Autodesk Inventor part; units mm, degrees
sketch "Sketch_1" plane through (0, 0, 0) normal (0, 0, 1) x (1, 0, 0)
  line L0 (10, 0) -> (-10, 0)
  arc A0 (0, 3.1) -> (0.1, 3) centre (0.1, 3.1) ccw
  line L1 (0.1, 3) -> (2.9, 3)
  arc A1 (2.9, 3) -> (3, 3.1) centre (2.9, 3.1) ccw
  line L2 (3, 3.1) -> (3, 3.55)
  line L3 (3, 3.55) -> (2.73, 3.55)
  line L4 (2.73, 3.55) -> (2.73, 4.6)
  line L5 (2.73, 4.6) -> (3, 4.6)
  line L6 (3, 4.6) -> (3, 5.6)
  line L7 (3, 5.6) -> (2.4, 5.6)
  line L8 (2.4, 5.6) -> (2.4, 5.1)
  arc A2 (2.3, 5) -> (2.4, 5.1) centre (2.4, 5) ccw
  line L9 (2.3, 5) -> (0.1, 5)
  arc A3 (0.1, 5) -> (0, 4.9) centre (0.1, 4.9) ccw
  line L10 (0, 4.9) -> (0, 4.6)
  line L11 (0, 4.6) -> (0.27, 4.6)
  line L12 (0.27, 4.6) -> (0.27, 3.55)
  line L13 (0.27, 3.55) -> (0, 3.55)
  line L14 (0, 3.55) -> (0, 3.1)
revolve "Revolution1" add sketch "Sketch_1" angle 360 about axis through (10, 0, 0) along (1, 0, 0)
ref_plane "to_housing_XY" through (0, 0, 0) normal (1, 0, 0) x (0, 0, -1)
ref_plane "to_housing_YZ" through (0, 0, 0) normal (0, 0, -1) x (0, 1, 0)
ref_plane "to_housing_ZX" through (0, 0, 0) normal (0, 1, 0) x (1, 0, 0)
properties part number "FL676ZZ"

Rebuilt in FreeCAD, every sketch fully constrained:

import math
import FreeCAD as App
import Part
import Sketcher

V = App.Vector
Q = App.Units.Quantity

doc = App.newDocument("Part")
params = doc.addObject("Spreadsheet::Sheet", "Params")
for row, (alias, value) in enumerate([
    ("sketch1_radius", "0.1 mm"),
    ("sketch1_height", "1 mm"),
    ("sketch1_width", "2.8 mm"),
    ("sketch1_width2", "0.6 mm"),
    ("sketch1_height2", "0.5 mm"),
    ("revolution_angle", "360 deg"),
], start=1):
    params.set(f"A{row}", alias)
    params.set(f"B{row}", "=" + value)
    params.setAlias(f"B{row}", alias)

body = doc.addObject("PartDesign::Body", "Body")

# Sketch on XY plane
sketch1 = doc.addObject("Sketcher::SketchObject", "Sketch")
body.addObject(sketch1)
sketch1.AttachmentSupport = (doc.XY_Plane, [""])
sketch1.MapMode = "FlatFace"
sketch1.addGeometry(Part.LineSegment(V(0, 3.55, 0), V(0, 3.1, 0)), False)
sketch1.addGeometry(Part.ArcOfCircle(Part.Circle(V(0.1, 3.1, 0), V(0, 0, 1), 0.1), math.radians(180), math.radians(270)), False)
sketch1.addGeometry(Part.LineSegment(V(0.1, 3, 0), V(2.9, 3, 0)), False)
sketch1.addGeometry(Part.ArcOfCircle(Part.Circle(V(2.9, 3.1, 0), V(0, 0, 1), 0.1), math.radians(-90), math.radians(0)), False)
sketch1.addGeometry(Part.LineSegment(V(3, 3.1, 0), V(3, 3.55, 0)), False)
sketch1.addGeometry(Part.LineSegment(V(3, 3.55, 0), V(2.73, 3.55, 0)), False)
sketch1.addGeometry(Part.LineSegment(V(2.73, 3.55, 0), V(2.73, 4.6, 0)), False)
sketch1.addGeometry(Part.LineSegment(V(2.73, 4.6, 0), V(3, 4.6, 0)), False)
sketch1.addGeometry(Part.LineSegment(V(3, 4.6, 0), V(3, 5.6, 0)), False)
sketch1.addGeometry(Part.LineSegment(V(3, 5.6, 0), V(2.4, 5.6, 0)), False)
sketch1.addGeometry(Part.LineSegment(V(2.4, 5.6, 0), V(2.4, 5.1, 0)), False)
sketch1.addGeometry(Part.ArcOfCircle(Part.Circle(V(2.4, 5, 0), V(0, 0, 1), 0.1), math.radians(180), math.radians(450)), False)
sketch1.addGeometry(Part.LineSegment(V(2.3, 5, 0), V(0.1, 5, 0)), False)
sketch1.addGeometry(Part.ArcOfCircle(Part.Circle(V(0.1, 4.9, 0), V(0, 0, 1), 0.1), math.radians(90), math.radians(180)), False)
sketch1.addGeometry(Part.LineSegment(V(0, 4.9, 0), V(0, 4.6, 0)), False)
sketch1.addGeometry(Part.LineSegment(V(0, 4.6, 0), V(0.27, 4.6, 0)), False)
sketch1.addGeometry(Part.LineSegment(V(0.27, 4.6, 0), V(0.27, 3.55, 0)), False)
sketch1.addGeometry(Part.LineSegment(V(0.27, 3.55, 0), V(0, 3.55, 0)), False)
sketch1.addConstraint(Sketcher.Constraint("Tangent", 0, 2, 1, 1))
sketch1.addConstraint(Sketcher.Constraint("Tangent", 1, 2, 2, 1))
sketch1.addConstraint(Sketcher.Constraint("Tangent", 2, 2, 3, 1))
sketch1.addConstraint(Sketcher.Constraint("Tangent", 3, 2, 4, 1))
sketch1.addConstraint(Sketcher.Constraint("Coincident", 4, 2, 5, 1))
sketch1.addConstraint(Sketcher.Constraint("Coincident", 5, 2, 6, 1))
sketch1.addConstraint(Sketcher.Constraint("Coincident", 6, 2, 7, 1))
sketch1.addConstraint(Sketcher.Constraint("Coincident", 7, 2, 8, 1))
sketch1.addConstraint(Sketcher.Constraint("Coincident", 8, 2, 9, 1))
sketch1.addConstraint(Sketcher.Constraint("Coincident", 9, 2, 10, 1))
sketch1.addConstraint(Sketcher.Constraint("Coincident", 10, 2, 11, 2))
sketch1.addConstraint(Sketcher.Constraint("Coincident", 11, 1, 12, 1))
sketch1.addConstraint(Sketcher.Constraint("Tangent", 12, 2, 13, 1))
sketch1.addConstraint(Sketcher.Constraint("Tangent", 13, 2, 14, 1))
sketch1.addConstraint(Sketcher.Constraint("Coincident", 14, 2, 15, 1))
sketch1.addConstraint(Sketcher.Constraint("Coincident", 15, 2, 16, 1))
sketch1.addConstraint(Sketcher.Constraint("Coincident", 16, 2, 17, 1))
sketch1.addConstraint(Sketcher.Constraint("Coincident", 17, 2, 0, 1))
sketch1.addConstraint(Sketcher.Constraint("Vertical", 0))
sketch1.addConstraint(Sketcher.Constraint("Horizontal", 2))
sketch1.addConstraint(Sketcher.Constraint("Vertical", 4))
sketch1.addConstraint(Sketcher.Constraint("Horizontal", 5))
sketch1.addConstraint(Sketcher.Constraint("Vertical", 6))
sketch1.addConstraint(Sketcher.Constraint("Horizontal", 7))
sketch1.addConstraint(Sketcher.Constraint("Vertical", 8))
sketch1.addConstraint(Sketcher.Constraint("Horizontal", 9))
sketch1.addConstraint(Sketcher.Constraint("Vertical", 10))
sketch1.addConstraint(Sketcher.Constraint("Horizontal", 12))
sketch1.addConstraint(Sketcher.Constraint("Vertical", 14))
sketch1.addConstraint(Sketcher.Constraint("Horizontal", 15))
sketch1.addConstraint(Sketcher.Constraint("Vertical", 16))
sketch1.addConstraint(Sketcher.Constraint("Horizontal", 17))
sketch1.addConstraint(Sketcher.Constraint("Equal", 1, 3))
sketch1.addConstraint(Sketcher.Constraint("Equal", 3, 11))
sketch1.addConstraint(Sketcher.Constraint("Equal", 11, 13))
sketch1.addConstraint(Sketcher.Constraint("PointOnObject", 0, 2, -2))
sketch1.addConstraint(Sketcher.Constraint("PointOnObject", 13, 2, -2))
sketch1.addConstraint(Sketcher.Constraint("Horizontal", 7, 2, 14, 2))
sketch1.addConstraint(Sketcher.Constraint("Horizontal", 5, 2, 16, 2))
sketch1.addConstraint(Sketcher.Constraint("Vertical", 4, 2, 7, 2))
sketch1.addConstraint(Sketcher.Constraint("Vertical", 11, 3, 9, 2))
sketch1.addConstraint(Sketcher.Constraint("Equal", 7, 15))
sketch1.addConstraint(Sketcher.Constraint("Radius", 1, Q("0.1 mm")))
sketch1.addConstraint(Sketcher.Constraint("DistanceY", 8, 1, 8, 2, Q("1 mm")))
sketch1.addConstraint(Sketcher.Constraint("DistanceX", 2, 1, 2, 2, Q("2.8 mm")))
sketch1.addConstraint(Sketcher.Constraint("DistanceX", 9, 2, 9, 1, Q("0.6 mm")))
sketch1.addConstraint(Sketcher.Constraint("DistanceY", 10, 2, 10, 1, Q("0.5 mm")))
sketch1.addConstraint(Sketcher.Constraint("DistanceY", 14, 2, 14, 1, Q("0.3 mm")))
sketch1.addConstraint(Sketcher.Constraint("DistanceY", -1, 1, 11, 3, Q("5 mm")))
sketch1.addConstraint(Sketcher.Constraint("DistanceY", -1, 1, 1, 2, Q("3 mm")))
sketch1.addConstraint(Sketcher.Constraint("DistanceX", 5, 2, 5, 1, Q("0.27 mm")))
sketch1.addConstraint(Sketcher.Constraint("DistanceY", 0, 2, 0, 1, Q("0.45 mm")))
sketch1.setExpression("Constraints[42]", "Params.sketch1_radius")
sketch1.setExpression("Constraints[43]", "Params.sketch1_height")
sketch1.setExpression("Constraints[44]", "Params.sketch1_width")
sketch1.setExpression("Constraints[45]", "Params.sketch1_width2")
sketch1.setExpression("Constraints[46]", "Params.sketch1_height2")
revolution = doc.addObject("PartDesign::Revolution", "Revolution")
body.addObject(revolution)
revolution.Profile = sketch1
revolution.ReferenceAxis = (sketch1, ["H_Axis"])
revolution.setExpression("Angle", "Params.revolution_angle")

doc.recompute()
